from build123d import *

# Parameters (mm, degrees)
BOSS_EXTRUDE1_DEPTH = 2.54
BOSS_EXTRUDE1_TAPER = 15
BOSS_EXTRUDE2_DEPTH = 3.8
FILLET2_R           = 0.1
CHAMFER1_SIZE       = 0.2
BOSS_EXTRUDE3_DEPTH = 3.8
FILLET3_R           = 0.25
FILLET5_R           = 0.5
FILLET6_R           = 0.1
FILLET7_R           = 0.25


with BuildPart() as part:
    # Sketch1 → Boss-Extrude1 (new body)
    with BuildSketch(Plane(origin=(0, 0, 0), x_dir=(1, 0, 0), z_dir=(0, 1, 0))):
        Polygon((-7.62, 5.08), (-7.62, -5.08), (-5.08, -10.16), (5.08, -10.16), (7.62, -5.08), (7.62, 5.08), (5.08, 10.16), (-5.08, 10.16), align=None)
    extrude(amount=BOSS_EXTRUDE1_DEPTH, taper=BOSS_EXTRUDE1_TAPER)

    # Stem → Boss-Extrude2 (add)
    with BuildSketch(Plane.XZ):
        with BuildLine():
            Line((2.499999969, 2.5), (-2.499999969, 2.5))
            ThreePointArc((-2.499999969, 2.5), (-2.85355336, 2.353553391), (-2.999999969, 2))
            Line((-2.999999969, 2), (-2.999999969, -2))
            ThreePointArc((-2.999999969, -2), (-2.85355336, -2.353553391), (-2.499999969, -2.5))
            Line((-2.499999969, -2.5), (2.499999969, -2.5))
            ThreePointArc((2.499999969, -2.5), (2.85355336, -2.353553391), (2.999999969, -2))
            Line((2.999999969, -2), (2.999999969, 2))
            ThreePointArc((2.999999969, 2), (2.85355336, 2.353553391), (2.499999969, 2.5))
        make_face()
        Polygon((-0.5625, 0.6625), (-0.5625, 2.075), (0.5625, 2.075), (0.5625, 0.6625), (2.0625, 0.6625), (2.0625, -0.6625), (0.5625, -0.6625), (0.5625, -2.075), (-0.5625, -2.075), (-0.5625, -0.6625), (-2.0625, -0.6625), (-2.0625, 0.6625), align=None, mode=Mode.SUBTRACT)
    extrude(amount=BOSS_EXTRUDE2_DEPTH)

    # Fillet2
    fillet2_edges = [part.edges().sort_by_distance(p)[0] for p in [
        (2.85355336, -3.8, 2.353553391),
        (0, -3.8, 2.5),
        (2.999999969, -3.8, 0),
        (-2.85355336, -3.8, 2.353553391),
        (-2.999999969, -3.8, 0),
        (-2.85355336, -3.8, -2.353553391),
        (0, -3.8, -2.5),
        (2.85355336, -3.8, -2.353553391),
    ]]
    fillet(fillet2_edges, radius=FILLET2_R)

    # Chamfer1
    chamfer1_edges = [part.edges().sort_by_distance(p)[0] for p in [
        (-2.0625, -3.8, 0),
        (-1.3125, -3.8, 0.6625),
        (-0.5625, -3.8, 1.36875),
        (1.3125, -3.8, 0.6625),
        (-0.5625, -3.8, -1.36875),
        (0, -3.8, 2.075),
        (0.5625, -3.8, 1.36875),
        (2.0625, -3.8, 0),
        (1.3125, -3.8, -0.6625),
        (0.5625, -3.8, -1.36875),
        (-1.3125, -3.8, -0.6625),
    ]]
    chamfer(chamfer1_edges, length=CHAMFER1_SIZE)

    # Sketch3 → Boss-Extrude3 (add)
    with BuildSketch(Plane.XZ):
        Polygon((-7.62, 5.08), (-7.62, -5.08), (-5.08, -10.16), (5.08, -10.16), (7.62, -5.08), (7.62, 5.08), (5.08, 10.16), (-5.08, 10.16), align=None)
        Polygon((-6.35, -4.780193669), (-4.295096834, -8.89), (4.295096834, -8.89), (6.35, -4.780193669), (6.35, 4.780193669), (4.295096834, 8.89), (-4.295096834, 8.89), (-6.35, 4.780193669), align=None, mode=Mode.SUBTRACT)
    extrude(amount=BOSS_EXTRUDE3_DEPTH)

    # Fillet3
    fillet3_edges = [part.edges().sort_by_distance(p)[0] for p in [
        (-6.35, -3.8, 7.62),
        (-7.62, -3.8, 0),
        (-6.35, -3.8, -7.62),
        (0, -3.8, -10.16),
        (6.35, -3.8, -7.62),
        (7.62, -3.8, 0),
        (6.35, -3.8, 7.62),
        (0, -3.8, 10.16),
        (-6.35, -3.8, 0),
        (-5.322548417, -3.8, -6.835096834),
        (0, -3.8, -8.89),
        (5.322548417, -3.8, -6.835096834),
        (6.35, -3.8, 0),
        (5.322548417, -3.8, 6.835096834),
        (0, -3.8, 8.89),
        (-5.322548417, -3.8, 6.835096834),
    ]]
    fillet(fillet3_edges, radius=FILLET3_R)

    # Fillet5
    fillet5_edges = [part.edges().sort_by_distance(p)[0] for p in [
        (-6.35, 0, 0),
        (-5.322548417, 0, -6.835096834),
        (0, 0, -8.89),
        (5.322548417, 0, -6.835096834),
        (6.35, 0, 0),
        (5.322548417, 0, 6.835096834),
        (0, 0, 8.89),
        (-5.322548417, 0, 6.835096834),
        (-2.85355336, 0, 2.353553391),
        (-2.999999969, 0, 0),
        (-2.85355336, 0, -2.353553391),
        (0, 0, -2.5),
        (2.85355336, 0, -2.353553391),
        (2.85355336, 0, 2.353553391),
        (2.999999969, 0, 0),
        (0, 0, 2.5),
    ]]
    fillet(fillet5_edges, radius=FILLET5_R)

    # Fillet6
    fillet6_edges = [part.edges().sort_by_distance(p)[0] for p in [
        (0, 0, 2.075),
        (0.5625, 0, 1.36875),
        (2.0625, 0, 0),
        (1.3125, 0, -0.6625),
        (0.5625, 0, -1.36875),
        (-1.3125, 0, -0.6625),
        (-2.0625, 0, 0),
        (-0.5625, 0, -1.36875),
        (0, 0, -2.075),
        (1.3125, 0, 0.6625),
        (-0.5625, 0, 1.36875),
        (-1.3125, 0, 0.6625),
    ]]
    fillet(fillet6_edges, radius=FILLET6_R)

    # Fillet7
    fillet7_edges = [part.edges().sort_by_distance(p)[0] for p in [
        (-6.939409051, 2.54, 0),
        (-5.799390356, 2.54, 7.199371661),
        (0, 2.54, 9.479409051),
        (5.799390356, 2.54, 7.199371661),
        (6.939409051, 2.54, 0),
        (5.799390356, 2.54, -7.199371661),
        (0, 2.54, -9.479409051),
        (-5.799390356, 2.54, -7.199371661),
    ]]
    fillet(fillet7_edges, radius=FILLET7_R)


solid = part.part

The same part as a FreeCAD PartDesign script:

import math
import FreeCAD as App
import Part
import Sketcher
from FreeCAD import Vector
Q = App.Units.Quantity


def edges_at(feature, points):
    """Names of the edges that pass closest to the given points."""
    edges = feature.Shape.Edges
    near = lambda p: min(range(len(edges)), key=lambda i: edges[i].distToShape(Part.Vertex(*p))[0])
    return sorted({f"Edge{near(p) + 1}" for p in points})


def add_polygon(sketch, points):
    """Adds a closed chain of lines whose ends are joined by coincident constraints."""
    first, n = sketch.GeometryCount, len(points)
    for a, b in zip(points, points[1:] + points[:1]):
        sketch.addGeometry(Part.LineSegment(App.Vector(*a, 0), App.Vector(*b, 0)), False)
    for i in range(n):
        sketch.addConstraint(Sketcher.Constraint("Coincident", first + i, 2, first + (i + 1) % n, 1))

doc = App.newDocument("Part")
params = doc.addObject("Spreadsheet::Sheet", "Params")
for row, (alias, value) in enumerate([
    ("sketch1_width", "10.16 mm"),
    ("pad1_length", "2.54 mm"),
    ("pad1_taper", "-15 deg"),
    ("sketch2_radius", "0.5 mm"),
    ("sketch2_width", "5 mm"),
    ("sketch2_height", "4 mm"),
    ("sketch2_width2", "1.5 mm"),
    ("pad2_length", "3.8 mm"),
    ("fillet_radius", "0.1 mm"),
    ("chamfer_size", "0.2 mm"),
    ("sketch3_width", "10.16 mm"),
    ("pad3_length", "3.8 mm"),
    ("fillet2_radius", "0.25 mm"),
    ("fillet3_radius", "0.5 mm"),
    ("fillet4_radius", "0.1 mm"),
    ("fillet5_radius", "0.25 mm"),
], start=1):
    params.set(f"A{row}", alias)
    params.set(f"B{row}", "=" + value)
    params.setAlias(f"B{row}", alias)

body = doc.addObject("PartDesign::Body", "Body")

# Sketch on XZ plane
sketch1 = body.newObject("Sketcher::SketchObject", "Sketch")
sketch1.AttachmentSupport = (doc.getObject("XZ_Plane"), [""])
sketch1.MapMode = "FlatFace"
add_polygon(sketch1, [(-7.62, -5.08), (-7.62, 5.08), (-5.08, 10.16), (5.08, 10.16), (7.62, 5.08), (7.62, -5.08), (5.08, -10.16), (-5.08, -10.16)])  # lines 0-7
sketch1.addConstraint([
    Sketcher.Constraint("Vertical", 0),
    Sketcher.Constraint("Horizontal", 2),
    Sketcher.Constraint("Vertical", 4),
    Sketcher.Constraint("Horizontal", 6),
    Sketcher.Constraint("Symmetric", 0, 2, 4, 2, -1, 1),
    Sketcher.Constraint("Symmetric", 1, 2, 5, 2, -1, 1),
    Sketcher.Constraint("Parallel", 3, 7),
    Sketcher.Constraint("Horizontal", 0, 2, 3, 2),
    Sketcher.Constraint("Horizontal", 4, 2, 7, 2),
    Sketcher.Constraint("Vertical", 2, 2, 5, 2),
    Sketcher.Constraint("Equal", 6, 0),
    Sketcher.Constraint("DistanceX", 2, 1, 2, 2, Q("10.16 mm")),
    Sketcher.Constraint("DistanceX", 0, 2, 2, 2, Q("12.7 mm")),
    Sketcher.Constraint("DistanceY", -1, 1, 1, 2, Q("10.16 mm")),
])
sketch1.setExpression("Constraints[19]", "Params.sketch1_width")
pad1 = body.newObject("PartDesign::Pad", "Pad")
pad1.Profile = sketch1
pad1.setExpression("Length", "Params.pad1_length")
pad1.Reversed = True
pad1.setExpression("TaperAngle", "Params.pad1_taper")

# Sketch on XZ plane
sketch2 = body.newObject("Sketcher::SketchObject", "Sketch001")
sketch2.AttachmentSupport = (doc.getObject("XZ_Plane"), [""])
sketch2.MapMode = "FlatFace"
sketch2.addGeometry(Part.LineSegment(Vector(2.5, 2.5, 0), Vector(-2.5, 2.5, 0)), False)  # 0
sketch2.addGeometry(Part.ArcOfCircle(Part.Circle(Vector(-2.5, 2, 0), Vector(0, 0, 1), 0.5), math.radians(90), math.radians(180)), False)  # 1
sketch2.addGeometry(Part.LineSegment(Vector(-3, 2, 0), Vector(-3, -2, 0)), False)  # 2
sketch2.addGeometry(Part.ArcOfCircle(Part.Circle(Vector(-2.5, -2, 0), Vector(0, 0, 1), 0.5), math.radians(180), math.radians(270)), False)  # 3
sketch2.addGeometry(Part.LineSegment(Vector(-2.5, -2.5, 0), Vector(2.5, -2.5, 0)), False)  # 4
sketch2.addGeometry(Part.ArcOfCircle(Part.Circle(Vector(2.5, -2, 0), Vector(0, 0, 1), 0.5), math.radians(-90), math.radians(0)), False)  # 5
sketch2.addGeometry(Part.LineSegment(Vector(3, -2, 0), Vector(3, 2, 0)), False)  # 6
sketch2.addGeometry(Part.ArcOfCircle(Part.Circle(Vector(2.5, 2, 0), Vector(0, 0, 1), 0.5), math.radians(0), math.radians(90)), False)  # 7
add_polygon(sketch2, [(-2.0625, 0.6625), (-0.5625, 0.6625), (-0.5625, 2.075), (0.5625, 2.075), (0.5625, 0.6625), (2.0625, 0.6625), (2.0625, -0.6625), (0.5625, -0.6625), (0.5625, -2.075), (-0.5625, -2.075), (-0.5625, -0.6625), (-2.0625, -0.6625)])  # lines 8-19
sketch2.addConstraint([
    Sketcher.Constraint("Tangent", 0, 2, 1, 1),
    Sketcher.Constraint("Tangent", 1, 2, 2, 1),
    Sketcher.Constraint("Tangent", 2, 2, 3, 1),
    Sketcher.Constraint("Tangent", 3, 2, 4, 1),
    Sketcher.Constraint("Tangent", 4, 2, 5, 1),
    Sketcher.Constraint("Tangent", 5, 2, 6, 1),
    Sketcher.Constraint("Tangent", 6, 2, 7, 1),
    Sketcher.Constraint("Tangent", 7, 2, 0, 1),
    Sketcher.Constraint("Horizontal", 0),
    Sketcher.Constraint("Vertical", 2),
    Sketcher.Constraint("Horizontal", 4),
    Sketcher.Constraint("Vertical", 6),
    Sketcher.Constraint("Horizontal", 8),
    Sketcher.Constraint("Vertical", 9),
    Sketcher.Constraint("Horizontal", 10),
    Sketcher.Constraint("Vertical", 11),
    Sketcher.Constraint("Horizontal", 12),
    Sketcher.Constraint("Vertical", 13),
    Sketcher.Constraint("Horizontal", 14),
    Sketcher.Constraint("Vertical", 15),
    Sketcher.Constraint("Horizontal", 16),
    Sketcher.Constraint("Vertical", 17),
    Sketcher.Constraint("Horizontal", 18),
    Sketcher.Constraint("Vertical", 19),
    Sketcher.Constraint("Equal", 1, 3),
    Sketcher.Constraint("Equal", 3, 5),
    Sketcher.Constraint("Equal", 5, 7),
    Sketcher.Constraint("Symmetric", 1, 3, 5, 3, -1, 1),
    Sketcher.Constraint("Symmetric", 8, 2, 14, 2, -1, 1),
    Sketcher.Constraint("Symmetric", 10, 2, 16, 2, -1, 1),
    Sketcher.Constraint("Symmetric", 12, 2, 18, 2, -1, 1),
    Sketcher.Constraint("Symmetric", 8, 2, 11, 2, -2),
    Sketcher.Constraint("Radius", 1, Q("0.5 mm")),
    Sketcher.Constraint("DistanceX", 0, 2, 0, 1, Q("5 mm")),
    Sketcher.Constraint("DistanceY", 2, 2, 2, 1, Q("4 mm")),
    Sketcher.Constraint("DistanceX", 8, 1, 8, 2, Q("1.5 mm")),
    Sketcher.Constraint("DistanceX", 10, 1, 10, 2, Q("1.125 mm")),
    Sketcher.Constraint("DistanceY", 13, 2, 13, 1, Q("1.325 mm")),
    Sketcher.Constraint("DistanceY", 9, 1, 9, 2, Q("1.4125 mm")),
])
sketch2.setExpression("Constraints[44]", "Params.sketch2_radius")
sketch2.setExpression("Constraints[45]", "Params.sketch2_width")
sketch2.setExpression("Constraints[46]", "Params.sketch2_height")
sketch2.setExpression("Constraints[47]", "Params.sketch2_width2")
pad2 = body.newObject("PartDesign::Pad", "Pad001")
pad2.Profile = sketch2
pad2.setExpression("Length", "Params.pad2_length")
doc.recompute()

fillet = body.newObject("PartDesign::Fillet", "Fillet")
fillet.Base = (pad2, edges_at(pad2, [
    (2.854, -3.8, 2.354),
    (0, -3.8, 2.5),
    (3, -3.8, 0),
    (-2.854, -3.8, 2.354),
    (-3, -3.8, 0),
    (-2.854, -3.8, -2.354),
    (0, -3.8, -2.5),
    (2.854, -3.8, -2.354),
]))
fillet.setExpression("Radius", "Params.fillet_radius")
doc.recompute()

chamfer = body.newObject("PartDesign::Chamfer", "Chamfer")
chamfer.Base = (fillet, edges_at(fillet, [
    (-2.062, -3.8, 0),
    (-1.312, -3.8, 0.662),
    (-0.562, -3.8, 1.369),
    (1.312, -3.8, 0.662),
    (-0.562, -3.8, -1.369),
    (0, -3.8, 2.075),
    (0.562, -3.8, 1.369),
    (2.062, -3.8, 0),
    (1.312, -3.8, -0.662),
    (0.562, -3.8, -1.369),
    (-1.312, -3.8, -0.662),
]))
chamfer.setExpression("Size", "Params.chamfer_size")

# Sketch on XZ plane
sketch3 = body.newObject("Sketcher::SketchObject", "Sketch002")
sketch3.AttachmentSupport = (doc.getObject("XZ_Plane"), [""])
sketch3.MapMode = "FlatFace"
add_polygon(sketch3, [(-7.62, 5.08), (-7.62, -5.08), (-5.08, -10.16), (5.08, -10.16), (7.62, -5.08), (7.62, 5.08), (5.08, 10.16), (-5.08, 10.16)])  # lines 0-7
add_polygon(sketch3, [(-4.295097, -8.89), (-6.35, -4.780194), (-6.35, 4.780194), (-4.295097, 8.89), (4.295097, 8.89), (6.35, 4.780194), (6.35, -4.780194), (4.295097, -8.89)])  # lines 8-15
sketch3.addConstraint([
    Sketcher.Constraint("Vertical", 0),
    Sketcher.Constraint("Horizontal", 2),
    Sketcher.Constraint("Vertical", 4),
    Sketcher.Constraint("Horizontal", 6),
    Sketcher.Constraint("Vertical", 9),
    Sketcher.Constraint("Horizontal", 11),
    Sketcher.Constraint("Vertical", 13),
    Sketcher.Constraint("Horizontal", 15),
    Sketcher.Constraint("Symmetric", 0, 2, 4, 2, -1, 1),
    Sketcher.Constraint("Symmetric", 1, 2, 5, 2, -1, 1),
    Sketcher.Constraint("Symmetric", 8, 2, 12, 2, -1, 1),
    Sketcher.Constraint("Symmetric", 10, 2, 14, 2, -1, 1),
    Sketcher.Constraint("Parallel", 3, 7),
    Sketcher.Constraint("Parallel", 5, 8),
    Sketcher.Constraint("Parallel", 7, 10),
    Sketcher.Constraint("Parallel", 8, 12),
    Sketcher.Constraint("Parallel", 10, 14),
    Sketcher.Constraint("Horizontal", 0, 2, 3, 2),
    Sketcher.Constraint("Horizontal", 4, 2, 7, 2),
    Sketcher.Constraint("Horizontal", 9, 2, 12, 2),
    Sketcher.Constraint("Vertical", 2, 2, 5, 2),
    Sketcher.Constraint("Equal", 6, 0),
    Sketcher.Constraint("DistanceX", 2, 1, 2, 2, Q("10.16 mm")),
    Sketcher.Constraint("DistanceX", 0, 2, 2, 2, Q("12.7 mm")),
    Sketcher.Constraint("DistanceY", 1, 2, -1, 1, Q("10.16 mm")),
    Sketcher.Constraint("DistanceX", 8, 2, -1, 1, Q("6.35 mm")),
    Sketcher.Constraint("DistanceY", -1, 1, 10, 2, Q("8.89 mm")),
    Sketcher.Constraint("DistanceX", 11, 1, 11, 2, Q("8.590194 mm")),
])
sketch3.setExpression("Constraints[38]", "Params.sketch3_width")
pad3 = body.newObject("PartDesign::Pad", "Pad002")
pad3.Profile = sketch3
pad3.setExpression("Length", "Params.pad3_length")
doc.recompute()

fillet2 = body.newObject("PartDesign::Fillet", "Fillet001")
fillet2.Base = (pad3, edges_at(pad3, [
    (-6.35, -3.8, 7.62),
    (-7.62, -3.8, 0),
    (-6.35, -3.8, -7.62),
    (0, -3.8, -10.16),
    (6.35, -3.8, -7.62),
    (7.62, -3.8, 0),
    (6.35, -3.8, 7.62),
    (0, -3.8, 10.16),
    (-6.35, -3.8, 0),
    (-5.323, -3.8, -6.835),
    (0, -3.8, -8.89),
    (5.323, -3.8, -6.835),
    (6.35, -3.8, 0),
    (5.323, -3.8, 6.835),
    (0, -3.8, 8.89),
    (-5.323, -3.8, 6.835),
]))
fillet2.setExpression("Radius", "Params.fillet2_radius")
doc.recompute()

fillet3 = body.newObject("PartDesign::Fillet", "Fillet002")
fillet3.Base = (fillet2, edges_at(fillet2, [
    (-6.35, 0, 0),
    (-5.323, 0, -6.835),
    (0, 0, -8.89),
    (5.323, 0, -6.835),
    (6.35, 0, 0),
    (5.323, 0, 6.835),
    (0, 0, 8.89),
    (-5.323, 0, 6.835),
    (-2.854, 0, 2.354),
    (-3, 0, 0),
    (-2.854, 0, -2.354),
    (0, 0, -2.5),
    (2.854, 0, -2.354),
    (2.854, 0, 2.354),
    (3, 0, 0),
    (0, 0, 2.5),
]))
fillet3.setExpression("Radius", "Params.fillet3_radius")
doc.recompute()

fillet4 = body.newObject("PartDesign::Fillet", "Fillet003")
fillet4.Base = (fillet3, edges_at(fillet3, [
    (0, 0, 2.075),
    (0.562, 0, 1.369),
    (2.062, 0, 0),
    (1.312, 0, -0.662),
    (0.562, 0, -1.369),
    (-1.312, 0, -0.662),
    (-2.062, 0, 0),
    (-0.562, 0, -1.369),
    (0, 0, -2.075),
    (1.312, 0, 0.662),
    (-0.562, 0, 1.369),
    (-1.312, 0, 0.662),
]))
fillet4.setExpression("Radius", "Params.fillet4_radius")
doc.recompute()

fillet5 = body.newObject("PartDesign::Fillet", "Fillet004")
fillet5.Base = (fillet4, edges_at(fillet4, [
    (-6.939, 2.54, 0),
    (-5.799, 2.54, 7.199),
    (0, 2.54, 9.479),
    (5.799, 2.54, 7.199),
    (6.939, 2.54, 0),
    (5.799, 2.54, -7.199),
    (0, 2.54, -9.479),
    (-5.799, 2.54, -7.199),
]))
fillet5.setExpression("Radius", "Params.fillet5_radius")

doc.recompute()
